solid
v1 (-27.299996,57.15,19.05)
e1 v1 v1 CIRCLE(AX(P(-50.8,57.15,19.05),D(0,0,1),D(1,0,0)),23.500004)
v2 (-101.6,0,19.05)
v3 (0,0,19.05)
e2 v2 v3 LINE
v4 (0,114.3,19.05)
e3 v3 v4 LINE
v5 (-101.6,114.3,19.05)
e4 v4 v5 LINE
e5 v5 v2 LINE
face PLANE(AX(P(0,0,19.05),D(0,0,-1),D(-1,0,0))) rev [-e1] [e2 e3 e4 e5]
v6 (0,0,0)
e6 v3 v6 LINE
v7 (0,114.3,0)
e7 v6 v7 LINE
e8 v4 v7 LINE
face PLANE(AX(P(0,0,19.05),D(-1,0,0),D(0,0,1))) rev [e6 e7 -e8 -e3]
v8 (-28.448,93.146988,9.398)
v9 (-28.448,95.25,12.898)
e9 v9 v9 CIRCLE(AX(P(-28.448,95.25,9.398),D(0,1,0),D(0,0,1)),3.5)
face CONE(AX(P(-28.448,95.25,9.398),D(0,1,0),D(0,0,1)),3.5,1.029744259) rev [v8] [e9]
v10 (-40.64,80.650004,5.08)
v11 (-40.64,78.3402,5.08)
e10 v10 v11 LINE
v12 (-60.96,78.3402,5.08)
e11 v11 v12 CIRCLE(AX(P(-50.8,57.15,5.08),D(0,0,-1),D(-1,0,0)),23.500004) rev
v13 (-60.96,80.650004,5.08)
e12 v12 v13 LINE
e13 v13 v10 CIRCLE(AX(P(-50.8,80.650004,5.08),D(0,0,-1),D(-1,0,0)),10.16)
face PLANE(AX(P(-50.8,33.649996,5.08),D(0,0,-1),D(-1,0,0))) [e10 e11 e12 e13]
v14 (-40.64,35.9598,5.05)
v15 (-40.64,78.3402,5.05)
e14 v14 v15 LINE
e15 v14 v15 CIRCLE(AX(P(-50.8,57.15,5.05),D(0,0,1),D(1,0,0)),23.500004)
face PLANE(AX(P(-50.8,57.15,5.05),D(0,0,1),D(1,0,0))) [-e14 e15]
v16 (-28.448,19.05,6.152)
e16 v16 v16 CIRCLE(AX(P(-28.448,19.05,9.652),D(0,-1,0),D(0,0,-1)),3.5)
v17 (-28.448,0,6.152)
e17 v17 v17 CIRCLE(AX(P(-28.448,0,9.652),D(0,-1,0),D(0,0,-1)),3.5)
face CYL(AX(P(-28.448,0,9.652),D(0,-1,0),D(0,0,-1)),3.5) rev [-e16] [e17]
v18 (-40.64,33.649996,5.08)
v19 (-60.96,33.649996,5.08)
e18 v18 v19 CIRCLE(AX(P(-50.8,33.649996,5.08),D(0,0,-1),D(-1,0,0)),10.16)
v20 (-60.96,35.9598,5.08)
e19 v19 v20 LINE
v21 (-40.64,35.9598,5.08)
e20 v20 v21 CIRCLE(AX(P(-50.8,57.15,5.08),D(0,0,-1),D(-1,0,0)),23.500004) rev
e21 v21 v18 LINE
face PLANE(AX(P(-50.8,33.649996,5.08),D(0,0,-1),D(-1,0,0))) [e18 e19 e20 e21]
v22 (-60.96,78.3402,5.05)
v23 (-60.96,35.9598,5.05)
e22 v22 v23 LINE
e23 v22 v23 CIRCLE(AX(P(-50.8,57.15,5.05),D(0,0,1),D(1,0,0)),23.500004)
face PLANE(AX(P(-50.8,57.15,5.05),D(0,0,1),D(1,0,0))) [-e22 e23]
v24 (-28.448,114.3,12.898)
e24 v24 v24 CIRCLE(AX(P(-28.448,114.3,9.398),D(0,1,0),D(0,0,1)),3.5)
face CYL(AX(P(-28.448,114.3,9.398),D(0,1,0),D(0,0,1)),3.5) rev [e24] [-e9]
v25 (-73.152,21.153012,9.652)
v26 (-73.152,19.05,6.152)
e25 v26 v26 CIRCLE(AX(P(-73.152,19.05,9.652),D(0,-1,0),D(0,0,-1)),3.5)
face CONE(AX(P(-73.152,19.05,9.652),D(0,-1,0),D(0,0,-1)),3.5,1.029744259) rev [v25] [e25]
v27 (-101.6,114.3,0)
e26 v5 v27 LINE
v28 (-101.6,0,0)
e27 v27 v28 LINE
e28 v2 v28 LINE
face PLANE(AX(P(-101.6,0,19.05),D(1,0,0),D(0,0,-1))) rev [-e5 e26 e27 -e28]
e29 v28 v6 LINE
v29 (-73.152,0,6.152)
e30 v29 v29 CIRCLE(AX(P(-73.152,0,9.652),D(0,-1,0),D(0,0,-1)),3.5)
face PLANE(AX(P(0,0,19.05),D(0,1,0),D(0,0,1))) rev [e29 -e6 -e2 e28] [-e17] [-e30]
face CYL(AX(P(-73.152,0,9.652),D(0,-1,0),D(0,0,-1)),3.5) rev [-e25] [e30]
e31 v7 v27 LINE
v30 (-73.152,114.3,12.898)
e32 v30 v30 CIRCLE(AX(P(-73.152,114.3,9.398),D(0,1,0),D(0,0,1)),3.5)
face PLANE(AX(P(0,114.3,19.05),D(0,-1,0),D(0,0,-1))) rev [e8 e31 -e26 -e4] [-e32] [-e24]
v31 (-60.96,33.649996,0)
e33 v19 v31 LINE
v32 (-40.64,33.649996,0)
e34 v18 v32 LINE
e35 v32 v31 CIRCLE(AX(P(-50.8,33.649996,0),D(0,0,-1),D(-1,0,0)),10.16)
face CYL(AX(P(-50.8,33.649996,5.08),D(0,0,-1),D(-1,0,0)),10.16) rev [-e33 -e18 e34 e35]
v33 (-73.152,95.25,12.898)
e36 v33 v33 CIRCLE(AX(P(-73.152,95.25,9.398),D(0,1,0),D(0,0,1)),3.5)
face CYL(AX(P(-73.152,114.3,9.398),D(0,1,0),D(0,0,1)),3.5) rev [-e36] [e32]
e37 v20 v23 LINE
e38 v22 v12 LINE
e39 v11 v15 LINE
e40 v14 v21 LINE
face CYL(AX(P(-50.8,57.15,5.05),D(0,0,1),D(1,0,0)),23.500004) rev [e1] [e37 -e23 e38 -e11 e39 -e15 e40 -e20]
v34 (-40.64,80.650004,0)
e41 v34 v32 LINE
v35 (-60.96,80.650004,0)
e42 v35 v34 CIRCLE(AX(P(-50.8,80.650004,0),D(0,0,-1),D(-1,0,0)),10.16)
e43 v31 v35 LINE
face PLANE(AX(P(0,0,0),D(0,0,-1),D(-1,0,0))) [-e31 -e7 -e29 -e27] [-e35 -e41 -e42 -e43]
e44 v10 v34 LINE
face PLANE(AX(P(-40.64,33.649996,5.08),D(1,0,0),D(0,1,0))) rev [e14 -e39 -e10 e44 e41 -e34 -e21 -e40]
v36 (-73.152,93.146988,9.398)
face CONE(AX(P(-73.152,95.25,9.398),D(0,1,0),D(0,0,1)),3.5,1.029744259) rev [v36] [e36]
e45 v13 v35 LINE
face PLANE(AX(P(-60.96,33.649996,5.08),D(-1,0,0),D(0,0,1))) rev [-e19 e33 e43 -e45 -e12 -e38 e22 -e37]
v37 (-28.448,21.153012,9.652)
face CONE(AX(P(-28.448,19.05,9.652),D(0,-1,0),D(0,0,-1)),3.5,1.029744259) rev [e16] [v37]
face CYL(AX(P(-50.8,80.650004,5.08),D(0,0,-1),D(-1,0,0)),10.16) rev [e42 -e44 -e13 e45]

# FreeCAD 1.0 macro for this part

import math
import FreeCAD as App
import Part
import Sketcher

V = App.Vector
Q = App.Units.Quantity

doc = App.newDocument("Part")
body = doc.addObject("PartDesign::Body", "Body")

# Sketch on XY plane
sketch1 = doc.addObject("Sketcher::SketchObject", "Sketch")
body.addObject(sketch1)
sketch1.AttachmentSupport = (doc.XY_Plane, [""])
sketch1.MapMode = "FlatFace"
sketch1.addGeometry([
    Part.LineSegment(V(-102, 0, 0), V(0, 0, 0)),
    Part.LineSegment(V(0, 0, 0), V(0, 114, 0)),
    Part.LineSegment(V(0, 114, 0), V(-102, 114, 0)),
    Part.LineSegment(V(-102, 114, 0), V(-102, 0, 0)),
], False)
sketch1.addConstraint([
    Sketcher.Constraint("Coincident", 0, 2, 1, 1),
    Sketcher.Constraint("Coincident", 1, 2, 2, 1),
    Sketcher.Constraint("Coincident", 2, 2, 3, 1),
    Sketcher.Constraint("Coincident", 3, 2, 0, 1),
    Sketcher.Constraint("Horizontal", 0),
    Sketcher.Constraint("Vertical", 1),
    Sketcher.Constraint("Horizontal", 2),
    Sketcher.Constraint("Vertical", 3),
    Sketcher.Constraint("Coincident", 0, 2, -1, 1),
    Sketcher.Constraint("DistanceX", 0, 1, 0, 2, Q("4 in")),
    Sketcher.Constraint("DistanceY", 1, 1, 1, 2, Q("4.5 in")),
])
pad1 = doc.addObject("PartDesign::Pad", "Pad")
body.addObject(pad1)
pad1.Profile = sketch1
pad1.Length = Q("0.75 in")

# Sketch on XZ plane
sketch2 = doc.addObject("Sketcher::SketchObject", "Sketch001")
body.addObject(sketch2)
sketch2.AttachmentSupport = (doc.XZ_Plane, [""])
sketch2.MapMode = "FlatFace"
sketch2.addGeometry([
    Part.Circle(V(-28.4, 9.7, 0), V(0, 0, 1), 3.5),
    Part.Circle(V(-73.2, 9.7, 0), V(0, 0, 1), 3.5),
], False)
sketch2.addConstraint([
    Sketcher.Constraint("Equal", 0, 1),
    Sketcher.Constraint("Horizontal", 0, 3, 1, 3),
    Sketcher.Constraint("Diameter", 0, 7.0),
    Sketcher.Constraint("DistanceX", 0, 3, -1, 1, Q("1.12 in")),
    Sketcher.Constraint("DistanceY", -1, 1, 0, 3, Q("0.38 in")),
    Sketcher.Constraint("DistanceX", 1, 3, -1, 1, Q("2.88 in")),
])
doc.recompute()
hole = doc.addObject("PartDesign::Hole", "Hole")
body.addObject(hole)
hole.Profile = sketch2
hole.ThreadType = "None"
hole.Diameter = 7
hole.DepthType = "Dimension"
hole.Depth = Q("0.75 in")
hole.DrillPoint = "Angled"
hole.DrillPointAngle = 118

# Sketch on XZ plane
sketch3 = doc.addObject("Sketcher::SketchObject", "Sketch002")
body.addObject(sketch3)
sketch3.AttachmentSupport = (doc.XZ_Plane, [""])
sketch3.MapMode = "FlatFace"
sketch3.AttachmentOffset = App.Placement(V(0, 0, -4.5 * 25.4), App.Rotation())
sketch3.addGeometry([
    Part.Circle(V(-73.2, 9.4, 0), V(0, 0, 1), 3.5),
    Part.Circle(V(-28.4, 9.4, 0), V(0, 0, 1), 3.5),
], False)
sketch3.addConstraint([
    Sketcher.Constraint("Equal", 0, 1),
    Sketcher.Constraint("Horizontal", 0, 3, 1, 3),
    Sketcher.Constraint("Diameter", 0, 7.0),
    Sketcher.Constraint("DistanceX", 0, 3, -1, 1, Q("2.88 in")),
    Sketcher.Constraint("DistanceY", -1, 1, 0, 3, Q("0.37 in")),
    Sketcher.Constraint("DistanceX", 1, 3, -1, 1, Q("1.12 in")),
])
doc.recompute()
hole2 = doc.addObject("PartDesign::Hole", "Hole001")
body.addObject(hole2)
hole2.Profile = sketch3
hole2.ThreadType = "None"
hole2.Diameter = 7
hole2.DepthType = "Dimension"
hole2.Depth = Q("0.75 in")
hole2.DrillPoint = "Angled"
hole2.DrillPointAngle = 118
hole2.Reversed = True

# Sketch on XY plane
sketch4 = doc.addObject("Sketcher::SketchObject", "Sketch003")
body.addObject(sketch4)
sketch4.AttachmentSupport = (doc.XY_Plane, [""])
sketch4.MapMode = "FlatFace"
sketch4.AttachmentOffset = App.Placement(V(0, 0, 0.75 * 25.4), App.Rotation())
sketch4.addGeometry(Part.Circle(V(-51, 57, 0), V(0, 0, 1), 24), False)
sketch4.addConstraint([
    Sketcher.Constraint("DistanceX", 0, 3, -1, 1, Q("2 in")),
    Sketcher.Constraint("DistanceY", -1, 1, 0, 3, Q("2.25 in")),
    Sketcher.Constraint("Diameter", 0, 47.000008),
])
pocket1 = doc.addObject("PartDesign::Pocket", "Pocket")
body.addObject(pocket1)
pocket1.Profile = sketch4
pocket1.Length = 14

# Sketch on XY plane
sketch5 = doc.addObject("Sketcher::SketchObject", "Sketch004")
body.addObject(sketch5)
sketch5.AttachmentSupport = (doc.XY_Plane, [""])
sketch5.MapMode = "FlatFace"
sketch5.addGeometry([
    Part.LineSegment(V(-41, 81, 0), V(-41, 34, 0)),
    Part.ArcOfCircle(Part.Circle(V(-51, 34, 0), V(0, 0, 1), 10), math.radians(180), math.radians(360)),
    Part.LineSegment(V(-61, 34, 0), V(-61, 81, 0)),
    Part.ArcOfCircle(Part.Circle(V(-51, 81, 0), V(0, 0, 1), 10), math.radians(0), math.radians(180)),
], False)
sketch5.addConstraint([
    Sketcher.Constraint("Tangent", 0, 2, 1, 2),
    Sketcher.Constraint("Tangent", 1, 1, 2, 1),
    Sketcher.Constraint("Tangent", 2, 2, 3, 2),
    Sketcher.Constraint("Tangent", 3, 1, 0, 1),
    Sketcher.Constraint("Vertical", 0),
    Sketcher.Constraint("Vertical", 2),
    Sketcher.Constraint("Radius", 1, Q("0.4 in")),
    Sketcher.Constraint("DistanceX", 1, 3, -1, 1, Q("2 in")),
    Sketcher.Constraint("DistanceY", 0, 2, 0, 1, 47.000008),
    Sketcher.Constraint("DistanceY", -1, 1, 1, 3, 33.649996),
])
pocket2 = doc.addObject("PartDesign::Pocket", "Pocket001")
body.addObject(pocket2)
pocket2.Profile = sketch5
pocket2.Length = Q("0.2 in")
pocket2.Reversed = True

doc.recompute()
